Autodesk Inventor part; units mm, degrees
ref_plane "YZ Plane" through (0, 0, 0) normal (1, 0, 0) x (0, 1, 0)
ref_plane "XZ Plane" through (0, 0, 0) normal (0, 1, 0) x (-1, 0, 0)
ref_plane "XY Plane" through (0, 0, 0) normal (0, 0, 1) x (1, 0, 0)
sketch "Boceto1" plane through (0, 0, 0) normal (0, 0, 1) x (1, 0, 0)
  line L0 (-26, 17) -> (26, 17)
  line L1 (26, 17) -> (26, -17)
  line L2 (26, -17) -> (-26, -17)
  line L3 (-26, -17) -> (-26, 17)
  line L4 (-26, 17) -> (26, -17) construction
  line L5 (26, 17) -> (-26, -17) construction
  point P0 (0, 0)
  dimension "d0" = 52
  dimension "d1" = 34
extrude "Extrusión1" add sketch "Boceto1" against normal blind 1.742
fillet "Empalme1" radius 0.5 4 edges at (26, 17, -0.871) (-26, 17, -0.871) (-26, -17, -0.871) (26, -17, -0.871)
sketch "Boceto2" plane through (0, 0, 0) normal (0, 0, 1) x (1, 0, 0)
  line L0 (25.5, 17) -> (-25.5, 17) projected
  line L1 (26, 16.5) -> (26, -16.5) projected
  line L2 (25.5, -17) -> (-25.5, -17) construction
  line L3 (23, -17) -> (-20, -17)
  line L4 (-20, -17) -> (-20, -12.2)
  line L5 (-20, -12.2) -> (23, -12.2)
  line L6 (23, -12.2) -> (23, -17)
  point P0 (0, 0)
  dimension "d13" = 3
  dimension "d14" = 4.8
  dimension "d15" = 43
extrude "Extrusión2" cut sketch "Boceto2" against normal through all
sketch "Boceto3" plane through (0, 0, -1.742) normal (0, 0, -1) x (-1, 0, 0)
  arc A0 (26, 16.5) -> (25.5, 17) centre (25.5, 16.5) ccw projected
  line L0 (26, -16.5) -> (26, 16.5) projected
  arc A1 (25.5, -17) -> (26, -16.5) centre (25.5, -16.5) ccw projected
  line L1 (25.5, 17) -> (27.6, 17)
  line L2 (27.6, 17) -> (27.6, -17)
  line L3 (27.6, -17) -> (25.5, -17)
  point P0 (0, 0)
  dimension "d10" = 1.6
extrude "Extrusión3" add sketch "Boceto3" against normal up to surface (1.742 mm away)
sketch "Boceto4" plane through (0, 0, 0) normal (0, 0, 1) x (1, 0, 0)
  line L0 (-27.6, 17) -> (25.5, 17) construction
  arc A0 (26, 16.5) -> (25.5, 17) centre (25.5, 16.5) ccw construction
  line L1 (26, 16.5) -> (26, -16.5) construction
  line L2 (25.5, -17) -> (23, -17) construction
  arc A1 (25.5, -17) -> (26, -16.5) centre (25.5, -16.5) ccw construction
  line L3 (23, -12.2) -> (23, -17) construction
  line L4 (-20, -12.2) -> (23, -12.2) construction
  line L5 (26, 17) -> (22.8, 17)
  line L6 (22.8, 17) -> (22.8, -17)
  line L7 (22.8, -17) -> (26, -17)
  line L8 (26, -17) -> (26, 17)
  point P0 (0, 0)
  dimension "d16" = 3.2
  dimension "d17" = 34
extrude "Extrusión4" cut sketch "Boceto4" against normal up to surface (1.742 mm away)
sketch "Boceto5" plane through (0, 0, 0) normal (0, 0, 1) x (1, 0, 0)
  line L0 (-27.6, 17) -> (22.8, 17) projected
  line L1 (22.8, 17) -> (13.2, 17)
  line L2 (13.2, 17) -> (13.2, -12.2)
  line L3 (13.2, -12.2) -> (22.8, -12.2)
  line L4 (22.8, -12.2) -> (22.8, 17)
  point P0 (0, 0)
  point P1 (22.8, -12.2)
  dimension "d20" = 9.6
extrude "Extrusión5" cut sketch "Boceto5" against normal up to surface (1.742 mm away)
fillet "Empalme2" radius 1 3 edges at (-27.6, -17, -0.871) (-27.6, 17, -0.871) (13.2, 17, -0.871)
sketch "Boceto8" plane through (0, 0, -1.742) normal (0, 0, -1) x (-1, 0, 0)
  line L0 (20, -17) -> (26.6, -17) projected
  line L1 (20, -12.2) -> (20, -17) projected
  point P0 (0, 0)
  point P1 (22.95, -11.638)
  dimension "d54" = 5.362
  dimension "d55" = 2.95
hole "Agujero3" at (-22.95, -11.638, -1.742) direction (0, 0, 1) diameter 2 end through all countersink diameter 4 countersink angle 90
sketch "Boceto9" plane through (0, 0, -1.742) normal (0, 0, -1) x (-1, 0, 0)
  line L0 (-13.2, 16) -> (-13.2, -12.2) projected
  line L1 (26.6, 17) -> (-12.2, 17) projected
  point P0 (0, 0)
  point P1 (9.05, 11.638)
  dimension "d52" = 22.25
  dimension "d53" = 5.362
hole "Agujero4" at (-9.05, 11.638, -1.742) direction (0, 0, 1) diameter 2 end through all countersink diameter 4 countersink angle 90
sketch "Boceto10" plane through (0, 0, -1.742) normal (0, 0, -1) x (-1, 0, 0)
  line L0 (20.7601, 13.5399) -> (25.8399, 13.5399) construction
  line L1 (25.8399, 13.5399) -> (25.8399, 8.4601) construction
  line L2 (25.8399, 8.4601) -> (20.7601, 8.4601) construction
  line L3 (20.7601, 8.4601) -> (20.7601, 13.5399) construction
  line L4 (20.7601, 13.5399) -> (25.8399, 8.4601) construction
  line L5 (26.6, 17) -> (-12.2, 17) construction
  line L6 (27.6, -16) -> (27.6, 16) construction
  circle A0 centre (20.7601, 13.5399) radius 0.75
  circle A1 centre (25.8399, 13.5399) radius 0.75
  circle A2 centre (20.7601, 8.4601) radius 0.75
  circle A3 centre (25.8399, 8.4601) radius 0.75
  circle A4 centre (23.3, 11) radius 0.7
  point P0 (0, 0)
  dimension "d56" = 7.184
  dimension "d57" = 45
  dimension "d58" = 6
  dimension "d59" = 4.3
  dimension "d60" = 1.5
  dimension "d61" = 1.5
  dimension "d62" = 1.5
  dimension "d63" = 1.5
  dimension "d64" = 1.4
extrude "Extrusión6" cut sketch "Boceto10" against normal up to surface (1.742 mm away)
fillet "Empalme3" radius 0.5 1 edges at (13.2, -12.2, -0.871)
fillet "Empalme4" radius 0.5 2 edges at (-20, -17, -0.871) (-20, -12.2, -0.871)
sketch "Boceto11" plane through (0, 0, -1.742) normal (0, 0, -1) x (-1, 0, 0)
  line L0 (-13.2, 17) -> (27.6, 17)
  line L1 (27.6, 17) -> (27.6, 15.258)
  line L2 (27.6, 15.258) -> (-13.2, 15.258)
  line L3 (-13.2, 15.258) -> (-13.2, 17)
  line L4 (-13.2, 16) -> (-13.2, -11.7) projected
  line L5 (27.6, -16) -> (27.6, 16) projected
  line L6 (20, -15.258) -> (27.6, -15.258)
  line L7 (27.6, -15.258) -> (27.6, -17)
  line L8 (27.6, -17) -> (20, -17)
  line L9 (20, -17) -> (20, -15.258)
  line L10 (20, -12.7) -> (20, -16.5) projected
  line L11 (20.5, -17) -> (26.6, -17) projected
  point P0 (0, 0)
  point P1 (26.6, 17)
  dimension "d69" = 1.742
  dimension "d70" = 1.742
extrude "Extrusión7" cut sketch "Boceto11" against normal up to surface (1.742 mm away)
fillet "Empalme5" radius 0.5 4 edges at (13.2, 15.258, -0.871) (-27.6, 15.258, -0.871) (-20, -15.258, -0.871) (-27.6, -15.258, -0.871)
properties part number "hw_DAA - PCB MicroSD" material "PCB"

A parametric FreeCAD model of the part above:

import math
import FreeCAD as App
import Part
import Sketcher
from FreeCAD import Vector
Q = App.Units.Quantity


def edges_at(feature, points):
    """Names of the edges that pass closest to the given points."""
    edges = feature.Shape.Edges
    near = lambda p: min(range(len(edges)), key=lambda i: edges[i].distToShape(Part.Vertex(*p))[0])
    return sorted({f"Edge{near(p) + 1}" for p in points})


def add_polygon(sketch, points):
    """Adds a closed chain of lines whose ends are joined by coincident constraints."""
    first, n = sketch.GeometryCount, len(points)
    for a, b in zip(points, points[1:] + points[:1]):
        sketch.addGeometry(Part.LineSegment(App.Vector(*a, 0), App.Vector(*b, 0)), False)
    for i in range(n):
        sketch.addConstraint(Sketcher.Constraint("Coincident", first + i, 2, first + (i + 1) % n, 1))

doc = App.newDocument("Part")
body = doc.addObject("PartDesign::Body", "Body")

# Sketch on XY plane
sketch1 = body.newObject("Sketcher::SketchObject", "Sketch")
sketch1.AttachmentSupport = (doc.getObject("XY_Plane"), [""])
sketch1.MapMode = "FlatFace"
add_polygon(sketch1, [(26, 17), (-26, 17), (-26, -17), (26, -17)])  # lines 0-3
sketch1.addConstraint([
    Sketcher.Constraint("Horizontal", 0),
    Sketcher.Constraint("Vertical", 1),
    Sketcher.Constraint("Horizontal", 2),
    Sketcher.Constraint("Vertical", 3),
    Sketcher.Constraint("Symmetric", 0, 2, 2, 2, -1, 1),
    Sketcher.Constraint("DistanceX", 0, 2, 0, 1, Q("52 mm")),
    Sketcher.Constraint("DistanceY", 1, 2, 1, 1, Q("34 mm")),
])
pad1 = body.newObject("PartDesign::Pad", "Pad")
pad1.Profile = sketch1
pad1.Length = 1.742
pad1.Reversed = True
doc.recompute()

fillet = body.newObject("PartDesign::Fillet", "Fillet")
fillet.Base = (pad1, edges_at(pad1, [
    (26, 17, -0.871),
    (-26, 17, -0.871),
    (-26, -17, -0.871),
    (26, -17, -0.871),
]))
fillet.Radius = 0.5

# Sketch on XY plane
sketch2 = body.newObject("Sketcher::SketchObject", "Sketch001")
sketch2.AttachmentSupport = (doc.getObject("XY_Plane"), [""])
sketch2.MapMode = "FlatFace"
add_polygon(sketch2, [(-20, -17), (23, -17), (23, -12.2), (-20, -12.2)])  # lines 0-3
sketch2.addConstraint([
    Sketcher.Constraint("Horizontal", 0),
    Sketcher.Constraint("Vertical", 1),
    Sketcher.Constraint("Horizontal", 2),
    Sketcher.Constraint("Vertical", 3),
    Sketcher.Constraint("DistanceX", 0, 1, 0, 2, Q("43 mm")),
    Sketcher.Constraint("DistanceY", 1, 1, 1, 2, Q("4.8 mm")),
    Sketcher.Constraint("DistanceX", -1, 1, 0, 2, Q("23 mm")),
    Sketcher.Constraint("DistanceY", 0, 2, -1, 1, Q("17 mm")),
])
pocket1 = body.newObject("PartDesign::Pocket", "Pocket")
pocket1.Profile = sketch2
pocket1.Type = "ThroughAll"

# Sketch on XY plane
sketch3 = body.newObject("Sketcher::SketchObject", "Sketch002")
sketch3.AttachmentSupport = (doc.getObject("XY_Plane"), [""])
sketch3.MapMode = "FlatFace"
sketch3.AttachmentOffset = App.Placement(Vector(0, 0, -1.742), App.Rotation())
sketch3.addGeometry([
    Part.ArcOfCircle(Part.Circle(Vector(-25.5, 16.5, 0), Vector(0, 0, 1), 0.5), math.radians(90), math.radians(180)),  # 0
    Part.LineSegment(Vector(-26, 16.5, 0), Vector(-26, -16.5, 0)),  # 1
    Part.ArcOfCircle(Part.Circle(Vector(-25.5, -16.5, 0), Vector(0, 0, 1), 0.5), math.radians(180), math.radians(270)),  # 2
    Part.LineSegment(Vector(-25.5, -17, 0), Vector(-27.6, -17, 0)),  # 3
    Part.LineSegment(Vector(-27.6, -17, 0), Vector(-27.6, 17, 0)),  # 4
    Part.LineSegment(Vector(-27.6, 17, 0), Vector(-25.5, 17, 0)),  # 5
], False)
sketch3.addConstraint([
    Sketcher.Constraint("Tangent", 0, 2, 1, 1),
    Sketcher.Constraint("Tangent", 1, 2, 2, 1),
    Sketcher.Constraint("Tangent", 2, 2, 3, 1),
    Sketcher.Constraint("Coincident", 3, 2, 4, 1),
    Sketcher.Constraint("Coincident", 4, 2, 5, 1),
    Sketcher.Constraint("Tangent", 5, 2, 0, 1),
    Sketcher.Constraint("Vertical", 1),
    Sketcher.Constraint("Horizontal", 3),
    Sketcher.Constraint("Vertical", 4),
    Sketcher.Constraint("Horizontal", 5),
    Sketcher.Constraint("Equal", 0, 2),
    Sketcher.Constraint("Radius", 0, Q("0.5 mm")),
    Sketcher.Constraint("DistanceX", 3, 2, 1, 2, Q("1.6 mm")),
    Sketcher.Constraint("DistanceY", 1, 2, 1, 1, Q("33 mm")),
    Sketcher.Constraint("DistanceX", 0, 2, -1, 1, Q("26 mm")),
    Sketcher.Constraint("DistanceY", 2, 2, -1, 1, Q("17 mm")),
])
pad2 = body.newObject("PartDesign::Pad", "Pad001")
pad2.Profile = sketch3
pad2.Length = 1.742

# Sketch on XY plane
sketch4 = body.newObject("Sketcher::SketchObject", "Sketch003")
sketch4.AttachmentSupport = (doc.getObject("XY_Plane"), [""])
sketch4.MapMode = "FlatFace"
add_polygon(sketch4, [(26, -17), (26, 17), (22.8, 17), (22.8, -17)])  # lines 0-3
sketch4.addConstraint([
    Sketcher.Constraint("Vertical", 0),
    Sketcher.Constraint("Horizontal", 1),
    Sketcher.Constraint("Vertical", 2),
    Sketcher.Constraint("Horizontal", 3),
    Sketcher.Constraint("DistanceY", 0, 1, 0, 2, Q("34 mm")),
    Sketcher.Constraint("DistanceX", 1, 2, 1, 1, Q("3.2 mm")),
    Sketcher.Constraint("DistanceX", -1, 1, 0, 2, Q("26 mm")),
    Sketcher.Constraint("DistanceY", -1, 1, 0, 2, Q("17 mm")),
])
pocket2 = body.newObject("PartDesign::Pocket", "Pocket001")
pocket2.Profile = sketch4
pocket2.Length = 1.742

# Sketch on XY plane
sketch5 = body.newObject("Sketcher::SketchObject", "Sketch004")
sketch5.AttachmentSupport = (doc.getObject("XY_Plane"), [""])
sketch5.MapMode = "FlatFace"
add_polygon(sketch5, [(22.8, 17), (13.2, 17), (13.2, -12.2), (22.8, -12.2)])  # lines 0-3
sketch5.addConstraint([
    Sketcher.Constraint("Horizontal", 0),
    Sketcher.Constraint("Vertical", 1),
    Sketcher.Constraint("Horizontal", 2),
    Sketcher.Constraint("Vertical", 3),
    Sketcher.Constraint("DistanceX", 0, 2, 0, 1, Q("9.6 mm")),
    Sketcher.Constraint("DistanceY", 1, 2, 1, 1, Q("29.2 mm")),
    Sketcher.Constraint("DistanceY", -1, 1, 0, 2, Q("17 mm")),
    Sketcher.Constraint("DistanceX", -1, 1, 0, 2, Q("13.2 mm")),
])
pocket3 = body.newObject("PartDesign::Pocket", "Pocket002")
pocket3.Profile = sketch5
pocket3.Length = 1.742
doc.recompute()

fillet2 = body.newObject("PartDesign::Fillet", "Fillet001")
fillet2.Base = (pocket3, edges_at(pocket3, [(-27.6, -17, -0.871), (-27.6, 17, -0.871), (13.2, 17, -0.871)]))
fillet2.Radius = 1

# Sketch on XY plane
sketch6 = body.newObject("Sketcher::SketchObject", "Sketch005")
sketch6.AttachmentSupport = (doc.getObject("XY_Plane"), [""])
sketch6.MapMode = "FlatFace"
sketch6.AttachmentOffset = App.Placement(Vector(0, 0, -1.742), App.Rotation())
sketch6.addGeometry(Part.Circle(Vector(-22.95, -11.638, 0), Vector(0, 0, 1), 1), False)
sketch6.addConstraint([
    Sketcher.Constraint("Diameter", 0, Q("2 mm")),
    Sketcher.Constraint("DistanceX", 0, 3, -1, 1, Q("22.95 mm")),
    Sketcher.Constraint("DistanceY", 0, 3, -1, 1, Q("11.638 mm")),
])
doc.recompute()
hole = body.newObject("PartDesign::Hole", "Hole")
hole.Profile = sketch6
hole.ThreadType = "None"
hole.Diameter = 2
hole.DepthType = "ThroughAll"
hole.HoleCutType = "Countersink"
hole.HoleCutDiameter = 4
hole.HoleCutCountersinkAngle = 90
hole.Reversed = True

# Sketch on XY plane
sketch7 = body.newObject("Sketcher::SketchObject", "Sketch006")
sketch7.AttachmentSupport = (doc.getObject("XY_Plane"), [""])
sketch7.MapMode = "FlatFace"
sketch7.AttachmentOffset = App.Placement(Vector(0, 0, -1.742), App.Rotation())
sketch7.addGeometry(Part.Circle(Vector(-9.05, 11.638, 0), Vector(0, 0, 1), 1), False)
sketch7.addConstraint([
    Sketcher.Constraint("Diameter", 0, Q("2 mm")),
    Sketcher.Constraint("DistanceX", 0, 3, -1, 1, Q("9.05 mm")),
    Sketcher.Constraint("DistanceY", -1, 1, 0, 3, Q("11.638 mm")),
])
doc.recompute()
hole2 = body.newObject("PartDesign::Hole", "Hole001")
hole2.Profile = sketch7
hole2.ThreadType = "None"
hole2.Diameter = 2
hole2.DepthType = "ThroughAll"
hole2.HoleCutType = "Countersink"
hole2.HoleCutDiameter = 4
hole2.HoleCutCountersinkAngle = 90
hole2.Reversed = True

# Sketch on XY plane
sketch8 = body.newObject("Sketcher::SketchObject", "Sketch007")
sketch8.AttachmentSupport = (doc.getObject("XY_Plane"), [""])
sketch8.MapMode = "FlatFace"
sketch8.AttachmentOffset = App.Placement(Vector(0, 0, -1.742), App.Rotation())
sketch8.addGeometry([
    Part.Circle(Vector(-20.7601, 13.5399, 0), Vector(0, 0, 1), 0.75),  # 0
    Part.Circle(Vector(-25.8399, 13.5399, 0), Vector(0, 0, 1), 0.75),  # 1
    Part.Circle(Vector(-20.7601, 8.4601, 0), Vector(0, 0, 1), 0.75),  # 2
    Part.Circle(Vector(-25.8399, 8.4601, 0), Vector(0, 0, 1), 0.75),  # 3
    Part.Circle(Vector(-23.3, 11, 0), Vector(0, 0, 1), 0.7),  # 4
], False)
sketch8.addConstraint([
    Sketcher.Constraint("Equal", 0, 1),
    Sketcher.Constraint("Equal", 1, 2),
    Sketcher.Constraint("Equal", 2, 3),
    Sketcher.Constraint("Horizontal", 0, 3, 1, 3),
    Sketcher.Constraint("Horizontal", 2, 3, 3, 3),
    Sketcher.Constraint("Vertical", 0, 3, 2, 3),
    Sketcher.Constraint("Vertical", 1, 3, 3, 3),
    Sketcher.Constraint("Diameter", 0, Q("1.5 mm")),
    Sketcher.Constraint("Diameter", 4, Q("1.4 mm")),
    Sketcher.Constraint("DistanceY", -1, 1, 4, 3, Q("11 mm")),
    Sketcher.Constraint("DistanceX", 4, 3, -1, 1, Q("23.3 mm")),
    Sketcher.Constraint("DistanceX", 0, 3, -1, 1, Q("20.76 mm")),
    Sketcher.Constraint("DistanceY", -1, 1, 0, 3, Q("13.54 mm")),
    Sketcher.Constraint("DistanceX", 1, 3, -1, 1, Q("25.84 mm")),
    Sketcher.Constraint("DistanceY", -1, 1, 2, 3, Q("8.46 mm")),
])
pocket4 = body.newObject("PartDesign::Pocket", "Pocket003")
pocket4.Profile = sketch8
pocket4.Length = 1.742
pocket4.Reversed = True
doc.recompute()

fillet3 = body.newObject("PartDesign::Fillet", "Fillet002")
fillet3.Base = (pocket4, edges_at(pocket4, [(13.2, -12.2, -0.871)]))
fillet3.Radius = 0.5
doc.recompute()

fillet4 = body.newObject("PartDesign::Fillet", "Fillet003")
fillet4.Base = (fillet3, edges_at(fillet3, [(-20, -17, -0.871), (-20, -12.2, -0.871)]))
fillet4.Radius = 0.5

# Sketch on XY plane
sketch9 = body.newObject("Sketcher::SketchObject", "Sketch008")
sketch9.AttachmentSupport = (doc.getObject("XY_Plane"), [""])
sketch9.MapMode = "FlatFace"
sketch9.AttachmentOffset = App.Placement(Vector(0, 0, -1.742), App.Rotation())
add_polygon(sketch9, [(-27.6, -17), (-27.6, -15.258), (-20, -15.258), (-20, -17)])  # lines 0-3
add_polygon(sketch9, [(-27.6, 17), (13.2, 17), (13.2, 15.258), (-27.6, 15.258)])  # lines 4-7
sketch9.addConstraint([
    Sketcher.Constraint("Vertical", 0),
    Sketcher.Constraint("Horizontal", 1),
    Sketcher.Constraint("Vertical", 2),
    Sketcher.Constraint("Horizontal", 3),
    Sketcher.Constraint("Horizontal", 4),
    Sketcher.Constraint("Vertical", 5),
    Sketcher.Constraint("Horizontal", 6),
    Sketcher.Constraint("Vertical", 7),
    Sketcher.Constraint("Symmetric", 0, 2, 6, 2, -1),
    Sketcher.Constraint("Equal", 2, 5),
    Sketcher.Constraint("DistanceY", 0, 1, 0, 2, Q("1.742 mm")),
    Sketcher.Constraint("DistanceX", 1, 1, 1, 2, Q("7.6 mm")),
    Sketcher.Constraint("DistanceX", 4, 1, 4, 2, Q("40.8 mm")),
    Sketcher.Constraint("DistanceX", 1, 2, -1, 1, Q("20 mm")),
    Sketcher.Constraint("DistanceY", 2, 2, -1, 1, Q("17 mm")),
])
pocket5 = body.newObject("PartDesign::Pocket", "Pocket004")
pocket5.Profile = sketch9
pocket5.Length = 1.742
pocket5.Reversed = True
doc.recompute()

fillet5 = body.newObject("PartDesign::Fillet", "Fillet004")
fillet5.Base = (pocket5, edges_at(pocket5, [
    (13.2, 15.258, -0.871),
    (-27.6, 15.258, -0.871),
    (-20, -15.258, -0.871),
    (-27.6, -15.258, -0.871),
]))
fillet5.Radius = 0.5

doc.recompute()
